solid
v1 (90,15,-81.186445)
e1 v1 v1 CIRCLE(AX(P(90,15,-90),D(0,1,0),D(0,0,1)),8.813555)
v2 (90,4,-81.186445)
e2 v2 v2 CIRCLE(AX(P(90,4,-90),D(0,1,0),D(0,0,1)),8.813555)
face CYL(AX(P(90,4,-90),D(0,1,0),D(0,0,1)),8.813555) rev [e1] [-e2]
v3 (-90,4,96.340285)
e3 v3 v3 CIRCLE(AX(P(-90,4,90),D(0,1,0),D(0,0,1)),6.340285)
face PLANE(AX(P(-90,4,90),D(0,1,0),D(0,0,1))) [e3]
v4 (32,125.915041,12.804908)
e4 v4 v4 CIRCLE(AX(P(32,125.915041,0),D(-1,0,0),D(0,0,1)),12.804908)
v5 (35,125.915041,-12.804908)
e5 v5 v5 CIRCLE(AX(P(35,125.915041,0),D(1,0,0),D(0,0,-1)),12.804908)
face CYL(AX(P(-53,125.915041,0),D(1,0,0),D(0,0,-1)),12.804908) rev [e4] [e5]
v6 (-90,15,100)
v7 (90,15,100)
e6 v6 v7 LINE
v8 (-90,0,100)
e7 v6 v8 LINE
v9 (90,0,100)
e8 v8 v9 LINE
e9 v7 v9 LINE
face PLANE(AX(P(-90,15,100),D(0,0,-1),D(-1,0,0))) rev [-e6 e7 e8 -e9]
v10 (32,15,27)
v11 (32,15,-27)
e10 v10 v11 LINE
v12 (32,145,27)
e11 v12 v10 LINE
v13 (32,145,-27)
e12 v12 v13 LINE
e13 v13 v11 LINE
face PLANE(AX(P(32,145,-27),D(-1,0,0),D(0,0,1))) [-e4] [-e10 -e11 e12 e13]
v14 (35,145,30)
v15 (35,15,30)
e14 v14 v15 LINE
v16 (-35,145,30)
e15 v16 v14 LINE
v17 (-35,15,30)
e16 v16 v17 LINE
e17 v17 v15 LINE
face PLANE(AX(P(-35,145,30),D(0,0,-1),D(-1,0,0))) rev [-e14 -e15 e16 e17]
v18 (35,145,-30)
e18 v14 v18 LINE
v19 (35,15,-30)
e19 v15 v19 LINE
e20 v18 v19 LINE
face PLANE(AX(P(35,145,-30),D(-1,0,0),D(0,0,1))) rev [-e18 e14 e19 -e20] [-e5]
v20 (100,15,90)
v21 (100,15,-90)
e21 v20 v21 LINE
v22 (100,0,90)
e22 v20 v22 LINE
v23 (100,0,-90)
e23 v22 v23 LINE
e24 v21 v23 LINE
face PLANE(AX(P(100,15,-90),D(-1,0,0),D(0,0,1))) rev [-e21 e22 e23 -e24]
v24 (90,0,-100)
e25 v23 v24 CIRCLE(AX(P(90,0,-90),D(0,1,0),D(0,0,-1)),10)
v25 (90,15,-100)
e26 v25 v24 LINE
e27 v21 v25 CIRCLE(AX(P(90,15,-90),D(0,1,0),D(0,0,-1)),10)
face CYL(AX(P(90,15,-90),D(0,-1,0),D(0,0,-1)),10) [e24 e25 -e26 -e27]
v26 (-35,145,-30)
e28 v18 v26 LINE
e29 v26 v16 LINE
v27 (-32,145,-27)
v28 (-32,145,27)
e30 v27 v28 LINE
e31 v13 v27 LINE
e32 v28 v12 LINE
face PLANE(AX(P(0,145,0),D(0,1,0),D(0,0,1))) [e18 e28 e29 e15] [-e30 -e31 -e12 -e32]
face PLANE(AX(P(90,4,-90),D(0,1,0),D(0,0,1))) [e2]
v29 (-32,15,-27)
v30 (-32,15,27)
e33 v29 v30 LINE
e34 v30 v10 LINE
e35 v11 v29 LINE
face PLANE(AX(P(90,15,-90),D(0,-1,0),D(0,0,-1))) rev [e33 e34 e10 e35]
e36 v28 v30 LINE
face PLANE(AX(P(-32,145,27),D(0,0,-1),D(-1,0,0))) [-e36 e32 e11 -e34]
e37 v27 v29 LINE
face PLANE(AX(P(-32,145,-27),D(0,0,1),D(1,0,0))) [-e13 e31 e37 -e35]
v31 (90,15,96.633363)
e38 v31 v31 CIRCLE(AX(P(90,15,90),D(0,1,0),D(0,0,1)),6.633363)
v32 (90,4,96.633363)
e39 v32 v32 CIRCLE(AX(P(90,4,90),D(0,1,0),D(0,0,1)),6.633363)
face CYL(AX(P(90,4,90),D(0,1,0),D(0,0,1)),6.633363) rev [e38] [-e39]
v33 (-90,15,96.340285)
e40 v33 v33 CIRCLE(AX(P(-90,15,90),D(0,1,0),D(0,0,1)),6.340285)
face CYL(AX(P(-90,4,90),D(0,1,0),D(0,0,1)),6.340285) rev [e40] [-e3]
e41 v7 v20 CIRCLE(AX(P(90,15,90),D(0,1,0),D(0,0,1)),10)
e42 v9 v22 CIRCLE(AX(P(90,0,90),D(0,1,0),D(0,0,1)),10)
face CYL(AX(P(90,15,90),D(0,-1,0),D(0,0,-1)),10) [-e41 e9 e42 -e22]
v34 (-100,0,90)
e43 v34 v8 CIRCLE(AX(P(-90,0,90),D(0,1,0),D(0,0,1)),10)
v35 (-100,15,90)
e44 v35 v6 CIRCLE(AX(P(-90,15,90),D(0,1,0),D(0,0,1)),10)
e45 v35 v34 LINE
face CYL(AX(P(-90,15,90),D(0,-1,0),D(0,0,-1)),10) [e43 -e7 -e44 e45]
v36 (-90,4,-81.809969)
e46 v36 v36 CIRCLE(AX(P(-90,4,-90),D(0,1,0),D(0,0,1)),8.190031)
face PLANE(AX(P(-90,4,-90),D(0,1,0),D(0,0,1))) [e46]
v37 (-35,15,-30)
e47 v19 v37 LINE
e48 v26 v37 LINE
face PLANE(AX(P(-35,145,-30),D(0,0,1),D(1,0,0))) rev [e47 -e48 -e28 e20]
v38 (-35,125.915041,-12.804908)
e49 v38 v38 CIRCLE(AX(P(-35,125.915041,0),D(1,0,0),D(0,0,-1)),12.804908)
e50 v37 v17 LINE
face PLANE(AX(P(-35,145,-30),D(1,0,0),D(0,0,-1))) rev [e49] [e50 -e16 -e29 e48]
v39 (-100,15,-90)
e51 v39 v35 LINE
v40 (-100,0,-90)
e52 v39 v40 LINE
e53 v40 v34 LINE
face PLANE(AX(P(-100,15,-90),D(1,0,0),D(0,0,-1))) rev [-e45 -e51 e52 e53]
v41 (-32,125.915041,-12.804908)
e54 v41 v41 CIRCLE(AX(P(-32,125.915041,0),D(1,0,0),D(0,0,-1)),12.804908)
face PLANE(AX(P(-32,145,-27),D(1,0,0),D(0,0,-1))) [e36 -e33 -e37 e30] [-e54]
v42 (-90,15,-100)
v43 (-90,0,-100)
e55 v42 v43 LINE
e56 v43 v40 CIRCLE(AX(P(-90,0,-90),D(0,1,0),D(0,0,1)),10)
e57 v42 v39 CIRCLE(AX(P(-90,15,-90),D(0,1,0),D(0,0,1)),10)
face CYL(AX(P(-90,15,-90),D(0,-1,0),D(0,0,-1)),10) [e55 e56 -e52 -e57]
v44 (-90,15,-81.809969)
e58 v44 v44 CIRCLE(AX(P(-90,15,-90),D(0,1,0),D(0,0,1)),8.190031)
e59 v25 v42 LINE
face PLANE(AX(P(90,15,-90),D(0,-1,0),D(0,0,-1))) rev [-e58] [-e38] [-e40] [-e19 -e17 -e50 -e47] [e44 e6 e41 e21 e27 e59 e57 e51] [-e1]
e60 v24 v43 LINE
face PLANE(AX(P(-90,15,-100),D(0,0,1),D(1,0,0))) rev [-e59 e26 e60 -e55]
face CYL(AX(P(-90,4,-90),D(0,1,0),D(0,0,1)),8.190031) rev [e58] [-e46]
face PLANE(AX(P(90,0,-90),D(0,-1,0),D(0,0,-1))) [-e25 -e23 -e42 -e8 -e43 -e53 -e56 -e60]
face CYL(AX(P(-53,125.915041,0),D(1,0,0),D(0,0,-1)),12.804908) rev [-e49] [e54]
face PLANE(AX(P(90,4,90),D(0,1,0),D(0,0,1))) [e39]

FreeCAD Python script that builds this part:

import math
import FreeCAD as App
import Part
import Sketcher


def add_polygon(sketch, points):
    """Adds a closed chain of lines whose ends are joined by coincident constraints."""
    first, n = sketch.GeometryCount, len(points)
    for a, b in zip(points, points[1:] + points[:1]):
        sketch.addGeometry(Part.LineSegment(App.Vector(*a, 0), App.Vector(*b, 0)), False)
    for i in range(n):
        sketch.addConstraint(Sketcher.Constraint("Coincident", first + i, 2, first + (i + 1) % n, 1))

doc = App.newDocument("Part")
params = doc.addObject("Spreadsheet::Sheet", "Params")
for row, (alias, value) in enumerate([
    ("sketch1_radius", "10 mm"),
    ("sketch1_width", "180 mm"),
    ("pad1_length", "15 mm"),
    ("sketch2_width", "70 mm"),
    ("sketch2_width2", "64 mm"),
    ("sketch2_height", "60 mm"),
    ("sketch2_height2", "54 mm"),
    ("pad2_length", "130 mm"),
    ("pocket1_length", "88 mm"),
    ("pocket2_length", "11 mm"),
], start=1):
    params.set(f"A{row}", alias)
    params.set(f"B{row}", "=" + value)
    params.setAlias(f"B{row}", alias)

body = doc.addObject("PartDesign::Body", "Body")

sketch1 = doc.addObject("Sketcher::SketchObject", "Sketch")
body.addObject(sketch1)
sketch1.AttachmentSupport = (doc.XZ_Plane, [""])
sketch1.MapMode = "FlatFace"
sketch1.addGeometry([
    Part.LineSegment(App.Vector(90, -100, 0), App.Vector(-90, -100, 0)),
    Part.ArcOfCircle(Part.Circle(App.Vector(-90, -90, 0), App.Vector(0, 0, 1), 10), math.radians(180), math.radians(270)),
    Part.LineSegment(App.Vector(-100, -90, 0), App.Vector(-100, 90, 0)),
    Part.ArcOfCircle(Part.Circle(App.Vector(-90, 90, 0), App.Vector(0, 0, 1), 10), math.radians(90), math.radians(180)),
    Part.LineSegment(App.Vector(-90, 100, 0), App.Vector(90, 100, 0)),
    Part.ArcOfCircle(Part.Circle(App.Vector(90, 90, 0), App.Vector(0, 0, 1), 10), math.radians(0), math.radians(90)),
    Part.LineSegment(App.Vector(100, 90, 0), App.Vector(100, -90, 0)),
    Part.ArcOfCircle(Part.Circle(App.Vector(90, -90, 0), App.Vector(0, 0, 1), 10), math.radians(-90), math.radians(0)),
], False)
sketch1.addConstraint([
    Sketcher.Constraint("Tangent", 0, 2, 1, 2),
    Sketcher.Constraint("Tangent", 1, 1, 2, 1),
    Sketcher.Constraint("Tangent", 2, 2, 3, 2),
    Sketcher.Constraint("Tangent", 3, 1, 4, 1),
    Sketcher.Constraint("Tangent", 4, 2, 5, 2),
    Sketcher.Constraint("Tangent", 5, 1, 6, 1),
    Sketcher.Constraint("Tangent", 6, 2, 7, 2),
    Sketcher.Constraint("Tangent", 7, 1, 0, 1),
    Sketcher.Constraint("Horizontal", 0),
    Sketcher.Constraint("Vertical", 2),
    Sketcher.Constraint("Horizontal", 4),
    Sketcher.Constraint("Vertical", 6),
    Sketcher.Constraint("Equal", 1, 3),
    Sketcher.Constraint("Equal", 3, 5),
    Sketcher.Constraint("Equal", 5, 7),
    Sketcher.Constraint("Symmetric", 1, 3, 5, 3, -1, 1),
    Sketcher.Constraint("Equal", 4, 2),
    Sketcher.Constraint("Radius", 1, 10.0),
    Sketcher.Constraint("DistanceX", 0, 2, 0, 1, 180.0),
])
sketch1.setExpression("Constraints[17]", "Params.sketch1_radius")
sketch1.setExpression("Constraints[18]", "Params.sketch1_width")
pad1 = doc.addObject("PartDesign::Pad", "Pad")
body.addObject(pad1)
pad1.Profile = sketch1
pad1.setExpression("Length", "Params.pad1_length")
pad1.Reversed = True

sketch2 = doc.addObject("Sketcher::SketchObject", "Sketch001")
body.addObject(sketch2)
sketch2.AttachmentSupport = (doc.XZ_Plane, [""])
sketch2.MapMode = "FlatFace"
sketch2.AttachmentOffset = App.Placement(App.Vector(0, 0, -15), App.Rotation())
add_polygon(sketch2, [(-35, -30), (-35, 30), (35, 30), (35, -30)])
add_polygon(sketch2, [(32, 27), (-32, 27), (-32, -27), (32, -27)])
sketch2.addConstraint([
    Sketcher.Constraint("Vertical", 0),
    Sketcher.Constraint("Horizontal", 1),
    Sketcher.Constraint("Vertical", 2),
    Sketcher.Constraint("Horizontal", 3),
    Sketcher.Constraint("Horizontal", 4),
    Sketcher.Constraint("Vertical", 5),
    Sketcher.Constraint("Horizontal", 6),
    Sketcher.Constraint("Vertical", 7),
    Sketcher.Constraint("Symmetric", 0, 2, 2, 2, -1, 1),
    Sketcher.Constraint("Symmetric", 4, 2, 6, 2, -1, 1),
    Sketcher.Constraint("DistanceX", 1, 1, 1, 2, 70.0),
    Sketcher.Constraint("DistanceX", 4, 2, 4, 1, 64.0),
    Sketcher.Constraint("DistanceY", 0, 1, 0, 2, 60.0),
    Sketcher.Constraint("DistanceY", 5, 2, 5, 1, 54.0),
])
sketch2.setExpression("Constraints[18]", "Params.sketch2_width")
sketch2.setExpression("Constraints[19]", "Params.sketch2_width2")
sketch2.setExpression("Constraints[20]", "Params.sketch2_height")
sketch2.setExpression("Constraints[21]", "Params.sketch2_height2")
pad2 = doc.addObject("PartDesign::Pad", "Pad001")
body.addObject(pad2)
pad2.Profile = sketch2
pad2.setExpression("Length", "Params.pad2_length")
pad2.Reversed = True

sketch3 = doc.addObject("Sketcher::SketchObject", "Sketch002")
body.addObject(sketch3)
sketch3.AttachmentSupport = (doc.YZ_Plane, [""])
sketch3.MapMode = "FlatFace"
sketch3.AttachmentOffset = App.Placement(App.Vector(0, 0, 35), App.Rotation())
sketch3.addGeometry(Part.Circle(App.Vector(125.915041, 0, 0), App.Vector(0, 0, 1), 12.804908), False)
sketch3.addConstraint([
    Sketcher.Constraint("PointOnObject", 0, 3, -1),
    Sketcher.Constraint("Diameter", 0, 25.609815),
    Sketcher.Constraint("DistanceX", -1, 1, 0, 3, 125.915041),
])
pocket1 = doc.addObject("PartDesign::Pocket", "Pocket")
body.addObject(pocket1)
pocket1.Profile = sketch3
pocket1.setExpression("Length", "Params.pocket1_length")

sketch4 = doc.addObject("Sketcher::SketchObject", "Sketch003")
body.addObject(sketch4)
sketch4.AttachmentSupport = (doc.XZ_Plane, [""])
sketch4.MapMode = "FlatFace"
sketch4.AttachmentOffset = App.Placement(App.Vector(0, 0, -15), App.Rotation())
sketch4.addGeometry([
    Part.Circle(App.Vector(-90, -90, 0), App.Vector(0, 0, 1), 8.190031),
    Part.Circle(App.Vector(90, -90, 0), App.Vector(0, 0, 1), 8.813555),
    Part.Circle(App.Vector(-90, 90, 0), App.Vector(0, 0, 1), 6.340285),
    Part.Circle(App.Vector(90, 90, 0), App.Vector(0, 0, 1), 6.633363),
], False)
sketch4.addConstraint([
    Sketcher.Constraint("Symmetric", 1, 3, 2, 3, -1, 1),
    Sketcher.Constraint("Symmetric", 0, 3, 3, 3, -1, 1),
    Sketcher.Constraint("Symmetric", 0, 3, 1, 3, -2),
    Sketcher.Constraint("DistanceX", 0, 3, -1, 1, 90.0),
    Sketcher.Constraint("DistanceY", 0, 3, -1, 1, 90.0),
    Sketcher.Constraint("Diameter", 1, 17.62711),
    Sketcher.Constraint("Diameter", 2, 12.68057),
    Sketcher.Constraint("Diameter", 0, 16.380062),
    Sketcher.Constraint("Diameter", 3, 13.266726),
])
pocket2 = doc.addObject("PartDesign::Pocket", "Pocket001")
body.addObject(pocket2)
pocket2.Profile = sketch4
pocket2.setExpression("Length", "Params.pocket2_length")
pocket2.Reversed = True

doc.recompute()
